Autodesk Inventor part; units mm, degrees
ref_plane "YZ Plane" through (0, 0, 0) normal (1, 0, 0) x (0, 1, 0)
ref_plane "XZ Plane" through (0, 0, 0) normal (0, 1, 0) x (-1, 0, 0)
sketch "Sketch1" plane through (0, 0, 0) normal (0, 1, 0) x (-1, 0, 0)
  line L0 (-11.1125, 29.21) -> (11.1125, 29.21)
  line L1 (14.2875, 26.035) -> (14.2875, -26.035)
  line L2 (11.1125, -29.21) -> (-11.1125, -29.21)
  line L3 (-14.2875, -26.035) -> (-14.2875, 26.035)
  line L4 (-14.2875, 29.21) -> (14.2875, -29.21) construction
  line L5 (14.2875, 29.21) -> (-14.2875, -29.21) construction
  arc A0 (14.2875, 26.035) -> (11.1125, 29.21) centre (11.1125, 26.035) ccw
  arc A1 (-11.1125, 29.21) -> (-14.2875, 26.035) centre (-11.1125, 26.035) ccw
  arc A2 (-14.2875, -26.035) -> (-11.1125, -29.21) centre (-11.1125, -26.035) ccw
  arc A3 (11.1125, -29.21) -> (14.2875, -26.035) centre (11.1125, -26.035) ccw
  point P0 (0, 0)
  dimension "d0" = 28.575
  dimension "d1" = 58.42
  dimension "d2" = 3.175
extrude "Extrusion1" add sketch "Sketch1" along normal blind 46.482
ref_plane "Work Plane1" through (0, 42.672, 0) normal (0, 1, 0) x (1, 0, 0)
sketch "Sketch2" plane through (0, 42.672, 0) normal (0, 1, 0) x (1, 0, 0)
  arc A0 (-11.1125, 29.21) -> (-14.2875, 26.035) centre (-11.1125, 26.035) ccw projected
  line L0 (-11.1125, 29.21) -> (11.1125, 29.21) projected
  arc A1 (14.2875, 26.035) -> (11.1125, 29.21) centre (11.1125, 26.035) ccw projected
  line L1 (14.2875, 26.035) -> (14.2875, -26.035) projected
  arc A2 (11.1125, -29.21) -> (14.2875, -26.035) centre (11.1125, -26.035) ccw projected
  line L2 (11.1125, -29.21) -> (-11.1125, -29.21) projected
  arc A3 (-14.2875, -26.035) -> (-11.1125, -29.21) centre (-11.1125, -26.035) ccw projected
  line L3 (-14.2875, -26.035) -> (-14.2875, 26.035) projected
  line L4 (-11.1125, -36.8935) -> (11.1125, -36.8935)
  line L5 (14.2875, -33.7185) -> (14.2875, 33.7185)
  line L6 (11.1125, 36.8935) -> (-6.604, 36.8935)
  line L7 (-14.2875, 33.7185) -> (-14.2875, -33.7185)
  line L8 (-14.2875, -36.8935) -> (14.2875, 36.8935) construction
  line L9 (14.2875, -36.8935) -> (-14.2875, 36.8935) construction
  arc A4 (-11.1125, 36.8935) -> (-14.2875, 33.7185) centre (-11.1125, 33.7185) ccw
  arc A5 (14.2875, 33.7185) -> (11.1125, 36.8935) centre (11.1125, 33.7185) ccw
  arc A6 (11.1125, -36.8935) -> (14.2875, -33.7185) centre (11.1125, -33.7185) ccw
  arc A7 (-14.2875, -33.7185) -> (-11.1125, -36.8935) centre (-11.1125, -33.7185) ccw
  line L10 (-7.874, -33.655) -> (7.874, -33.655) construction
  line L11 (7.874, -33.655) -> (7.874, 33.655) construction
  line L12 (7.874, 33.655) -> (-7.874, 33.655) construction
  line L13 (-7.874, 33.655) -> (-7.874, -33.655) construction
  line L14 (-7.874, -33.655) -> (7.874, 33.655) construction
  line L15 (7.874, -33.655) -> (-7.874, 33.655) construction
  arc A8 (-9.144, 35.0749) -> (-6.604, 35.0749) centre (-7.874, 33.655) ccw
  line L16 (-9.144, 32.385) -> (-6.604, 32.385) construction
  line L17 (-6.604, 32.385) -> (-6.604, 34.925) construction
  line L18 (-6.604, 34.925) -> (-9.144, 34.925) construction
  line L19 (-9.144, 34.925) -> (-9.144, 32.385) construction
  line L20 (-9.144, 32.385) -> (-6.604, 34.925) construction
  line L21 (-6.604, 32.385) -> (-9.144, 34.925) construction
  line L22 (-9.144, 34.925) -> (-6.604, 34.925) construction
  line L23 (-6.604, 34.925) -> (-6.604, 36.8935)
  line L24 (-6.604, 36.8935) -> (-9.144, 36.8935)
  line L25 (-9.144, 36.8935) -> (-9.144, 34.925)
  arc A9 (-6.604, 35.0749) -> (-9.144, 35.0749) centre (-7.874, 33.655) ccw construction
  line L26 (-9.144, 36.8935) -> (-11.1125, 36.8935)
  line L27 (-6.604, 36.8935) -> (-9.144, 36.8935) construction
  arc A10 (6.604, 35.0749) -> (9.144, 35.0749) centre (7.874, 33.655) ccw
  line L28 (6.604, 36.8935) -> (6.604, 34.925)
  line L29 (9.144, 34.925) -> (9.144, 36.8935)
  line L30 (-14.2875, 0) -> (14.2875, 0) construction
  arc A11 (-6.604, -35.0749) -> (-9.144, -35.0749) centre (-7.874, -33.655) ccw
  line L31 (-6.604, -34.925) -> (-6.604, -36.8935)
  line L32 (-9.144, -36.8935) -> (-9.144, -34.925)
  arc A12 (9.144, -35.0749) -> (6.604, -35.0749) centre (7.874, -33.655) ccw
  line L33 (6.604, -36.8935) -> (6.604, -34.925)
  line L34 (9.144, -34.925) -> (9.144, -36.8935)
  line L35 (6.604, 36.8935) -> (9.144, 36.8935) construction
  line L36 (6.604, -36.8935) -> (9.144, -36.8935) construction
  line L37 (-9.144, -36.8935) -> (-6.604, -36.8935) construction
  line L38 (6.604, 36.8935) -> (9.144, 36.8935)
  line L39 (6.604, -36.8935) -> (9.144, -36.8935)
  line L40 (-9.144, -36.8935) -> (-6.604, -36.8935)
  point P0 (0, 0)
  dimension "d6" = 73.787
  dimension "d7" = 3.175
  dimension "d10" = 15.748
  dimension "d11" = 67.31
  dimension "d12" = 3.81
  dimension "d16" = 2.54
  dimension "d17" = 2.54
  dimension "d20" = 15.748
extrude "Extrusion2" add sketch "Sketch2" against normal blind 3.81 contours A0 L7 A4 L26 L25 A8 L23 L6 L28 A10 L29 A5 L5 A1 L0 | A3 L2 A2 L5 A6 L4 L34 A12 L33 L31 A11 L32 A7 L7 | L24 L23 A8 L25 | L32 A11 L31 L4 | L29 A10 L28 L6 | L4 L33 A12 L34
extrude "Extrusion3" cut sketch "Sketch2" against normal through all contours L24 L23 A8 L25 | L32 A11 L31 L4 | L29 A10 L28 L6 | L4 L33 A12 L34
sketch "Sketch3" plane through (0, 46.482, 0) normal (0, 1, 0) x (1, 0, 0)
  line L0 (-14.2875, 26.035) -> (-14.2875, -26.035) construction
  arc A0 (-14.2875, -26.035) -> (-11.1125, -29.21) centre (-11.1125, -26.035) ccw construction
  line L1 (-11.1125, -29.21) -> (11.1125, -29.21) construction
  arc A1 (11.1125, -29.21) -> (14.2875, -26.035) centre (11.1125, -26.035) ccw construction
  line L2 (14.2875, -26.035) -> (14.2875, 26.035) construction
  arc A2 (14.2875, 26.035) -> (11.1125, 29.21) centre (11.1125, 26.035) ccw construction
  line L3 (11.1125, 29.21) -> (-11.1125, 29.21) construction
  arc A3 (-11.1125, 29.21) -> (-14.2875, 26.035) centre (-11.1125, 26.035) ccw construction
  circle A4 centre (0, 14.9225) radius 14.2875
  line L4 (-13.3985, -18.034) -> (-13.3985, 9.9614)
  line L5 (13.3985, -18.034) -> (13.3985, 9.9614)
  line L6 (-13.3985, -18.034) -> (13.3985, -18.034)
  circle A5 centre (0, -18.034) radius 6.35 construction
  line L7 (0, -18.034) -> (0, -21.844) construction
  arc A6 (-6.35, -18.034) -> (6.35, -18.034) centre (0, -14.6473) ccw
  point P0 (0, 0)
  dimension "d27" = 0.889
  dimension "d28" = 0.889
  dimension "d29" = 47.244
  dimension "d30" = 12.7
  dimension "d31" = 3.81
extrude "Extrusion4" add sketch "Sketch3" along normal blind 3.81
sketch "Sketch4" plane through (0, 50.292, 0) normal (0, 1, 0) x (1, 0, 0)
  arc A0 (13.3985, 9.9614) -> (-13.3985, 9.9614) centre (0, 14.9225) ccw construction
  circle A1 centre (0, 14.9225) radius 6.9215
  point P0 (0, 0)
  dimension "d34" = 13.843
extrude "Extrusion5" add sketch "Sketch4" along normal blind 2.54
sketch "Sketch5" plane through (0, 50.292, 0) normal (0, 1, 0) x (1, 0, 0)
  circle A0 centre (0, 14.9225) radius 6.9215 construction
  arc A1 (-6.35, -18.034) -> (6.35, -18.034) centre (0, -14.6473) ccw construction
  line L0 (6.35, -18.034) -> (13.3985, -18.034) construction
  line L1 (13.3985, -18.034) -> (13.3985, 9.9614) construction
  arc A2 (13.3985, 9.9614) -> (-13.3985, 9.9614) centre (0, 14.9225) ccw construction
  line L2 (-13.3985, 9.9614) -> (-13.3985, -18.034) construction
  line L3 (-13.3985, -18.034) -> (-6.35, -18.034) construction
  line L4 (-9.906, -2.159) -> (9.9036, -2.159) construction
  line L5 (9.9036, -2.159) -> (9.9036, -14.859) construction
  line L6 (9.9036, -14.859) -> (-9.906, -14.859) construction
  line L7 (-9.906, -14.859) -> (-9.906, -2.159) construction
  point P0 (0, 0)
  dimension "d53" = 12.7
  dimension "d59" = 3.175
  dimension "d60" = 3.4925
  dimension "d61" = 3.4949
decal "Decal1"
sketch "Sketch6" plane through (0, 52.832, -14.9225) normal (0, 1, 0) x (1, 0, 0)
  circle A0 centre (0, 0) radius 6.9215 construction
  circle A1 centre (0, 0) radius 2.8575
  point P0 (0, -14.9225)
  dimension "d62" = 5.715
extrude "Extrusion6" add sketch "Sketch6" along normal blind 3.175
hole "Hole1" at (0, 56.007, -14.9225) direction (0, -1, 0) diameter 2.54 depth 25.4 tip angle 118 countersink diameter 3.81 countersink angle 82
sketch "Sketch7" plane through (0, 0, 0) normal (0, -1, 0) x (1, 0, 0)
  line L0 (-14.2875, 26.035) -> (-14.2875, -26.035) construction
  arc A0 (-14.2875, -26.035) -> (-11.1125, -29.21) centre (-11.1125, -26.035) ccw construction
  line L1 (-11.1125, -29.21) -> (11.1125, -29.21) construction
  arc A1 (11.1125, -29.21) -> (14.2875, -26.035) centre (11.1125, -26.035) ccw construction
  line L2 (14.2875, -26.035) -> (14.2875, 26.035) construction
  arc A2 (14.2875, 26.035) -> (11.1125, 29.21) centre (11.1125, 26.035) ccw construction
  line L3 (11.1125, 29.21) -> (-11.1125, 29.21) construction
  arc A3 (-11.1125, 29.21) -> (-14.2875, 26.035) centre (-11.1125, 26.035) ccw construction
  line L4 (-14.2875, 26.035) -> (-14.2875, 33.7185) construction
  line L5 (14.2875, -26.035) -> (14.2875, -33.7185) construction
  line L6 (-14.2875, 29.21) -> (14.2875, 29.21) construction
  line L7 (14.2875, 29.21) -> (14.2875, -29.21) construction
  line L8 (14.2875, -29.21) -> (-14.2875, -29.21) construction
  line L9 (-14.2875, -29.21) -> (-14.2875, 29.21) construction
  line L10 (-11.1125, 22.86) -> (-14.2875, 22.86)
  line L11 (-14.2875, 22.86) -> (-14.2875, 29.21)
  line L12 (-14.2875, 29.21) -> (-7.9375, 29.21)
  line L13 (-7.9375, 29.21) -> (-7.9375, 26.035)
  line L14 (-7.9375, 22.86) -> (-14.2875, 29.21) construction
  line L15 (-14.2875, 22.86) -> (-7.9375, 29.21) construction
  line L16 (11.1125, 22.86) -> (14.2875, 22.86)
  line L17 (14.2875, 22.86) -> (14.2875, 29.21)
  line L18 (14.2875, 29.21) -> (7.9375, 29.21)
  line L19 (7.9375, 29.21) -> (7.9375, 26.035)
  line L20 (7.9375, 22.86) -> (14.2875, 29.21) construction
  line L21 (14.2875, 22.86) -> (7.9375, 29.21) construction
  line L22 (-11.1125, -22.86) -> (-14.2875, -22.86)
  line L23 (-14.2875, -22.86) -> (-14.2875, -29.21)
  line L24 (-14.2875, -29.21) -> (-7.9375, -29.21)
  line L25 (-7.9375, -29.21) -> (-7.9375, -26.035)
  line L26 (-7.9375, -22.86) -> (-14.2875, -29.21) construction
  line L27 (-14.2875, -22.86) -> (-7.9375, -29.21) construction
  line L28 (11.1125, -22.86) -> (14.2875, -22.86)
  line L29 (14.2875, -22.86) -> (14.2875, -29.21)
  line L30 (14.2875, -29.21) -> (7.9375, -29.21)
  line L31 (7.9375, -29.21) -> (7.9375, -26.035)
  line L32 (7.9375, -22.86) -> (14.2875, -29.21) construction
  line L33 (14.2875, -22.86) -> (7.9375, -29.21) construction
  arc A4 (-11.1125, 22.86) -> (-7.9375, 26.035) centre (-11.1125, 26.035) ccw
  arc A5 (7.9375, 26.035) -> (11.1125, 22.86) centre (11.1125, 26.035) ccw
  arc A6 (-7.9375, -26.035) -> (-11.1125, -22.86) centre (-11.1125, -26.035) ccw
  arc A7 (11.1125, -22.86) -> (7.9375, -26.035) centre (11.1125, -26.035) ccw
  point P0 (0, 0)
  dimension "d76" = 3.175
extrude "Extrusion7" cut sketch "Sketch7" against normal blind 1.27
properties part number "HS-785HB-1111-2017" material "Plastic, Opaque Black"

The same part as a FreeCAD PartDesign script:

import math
import FreeCAD as App
import Part
import Sketcher

V = App.Vector
Q = App.Units.Quantity

doc = App.newDocument("Part")
body = doc.addObject("PartDesign::Body", "Body")

# Sketch on XZ plane
sketch1 = body.newObject("Sketcher::SketchObject", "Sketch")
sketch1.AttachmentSupport = (doc.getObject("XZ_Plane"), [""])
sketch1.MapMode = "FlatFace"
sketch1.addGeometry([
    Part.LineSegment(V(-11.1, 29.2, 0), V(11.1, 29.2, 0)),  # 0
    Part.ArcOfCircle(Part.Circle(V(11.1, 26, 0), V(0, 0, 1), 3.2), math.radians(0), math.radians(90)),  # 1
    Part.LineSegment(V(14.3, 26, 0), V(14.3, -26, 0)),  # 2
    Part.ArcOfCircle(Part.Circle(V(11.1, -26, 0), V(0, 0, 1), 3.2), math.radians(-90), math.radians(0)),  # 3
    Part.LineSegment(V(11.1, -29.2, 0), V(-11.1, -29.2, 0)),  # 4
    Part.ArcOfCircle(Part.Circle(V(-11.1, -26, 0), V(0, 0, 1), 3.2), math.radians(180), math.radians(270)),  # 5
    Part.LineSegment(V(-14.3, -26, 0), V(-14.3, 26, 0)),  # 6
    Part.ArcOfCircle(Part.Circle(V(-11.1, 26, 0), V(0, 0, 1), 3.2), math.radians(90), math.radians(180)),  # 7
], False)
sketch1.addConstraint([
    Sketcher.Constraint("Tangent", 0, 2, 1, 2),
    Sketcher.Constraint("Tangent", 1, 1, 2, 1),
    Sketcher.Constraint("Tangent", 2, 2, 3, 2),
    Sketcher.Constraint("Tangent", 3, 1, 4, 1),
    Sketcher.Constraint("Tangent", 4, 2, 5, 2),
    Sketcher.Constraint("Tangent", 5, 1, 6, 1),
    Sketcher.Constraint("Tangent", 6, 2, 7, 2),
    Sketcher.Constraint("Tangent", 7, 1, 0, 1),
    Sketcher.Constraint("Horizontal", 0),
    Sketcher.Constraint("Vertical", 2),
    Sketcher.Constraint("Horizontal", 4),
    Sketcher.Constraint("Vertical", 6),
    Sketcher.Constraint("Equal", 1, 3),
    Sketcher.Constraint("Equal", 3, 5),
    Sketcher.Constraint("Equal", 5, 7),
    Sketcher.Constraint("Symmetric", 1, 3, 5, 3, -1, 1),
    Sketcher.Constraint("Radius", 1, Q("0.125 in")),
    Sketcher.Constraint("DistanceX", 7, 3, 1, 1, Q("1 in")),
    Sketcher.Constraint("DistanceY", 2, 2, 2, 1, Q("2.05 in")),
])
pad1 = body.newObject("PartDesign::Pad", "Pad")
pad1.Profile = sketch1
pad1.Length = Q("1.83 in")
pad1.Reversed = True

# Sketch on XZ plane
sketch2 = body.newObject("Sketcher::SketchObject", "Sketch001")
sketch2.AttachmentSupport = (doc.getObject("XZ_Plane"), [""])
sketch2.MapMode = "FlatFace"
sketch2.AttachmentOffset = App.Placement(V(0, 0, -1.68 * 25.4), App.Rotation())
sketch2.addGeometry([
    Part.ArcOfCircle(Part.Circle(V(-11.1, -26, 0), V(0, 0, 1), 3.2), math.radians(180), math.radians(270)),  # 0
    Part.LineSegment(V(-11.1, -29.2, 0), V(11.1, -29.2, 0)),  # 1
    Part.ArcOfCircle(Part.Circle(V(11.1, -26, 0), V(0, 0, 1), 3.2), math.radians(-90), math.radians(0)),  # 2
    Part.LineSegment(V(14.3, -26, 0), V(14.3, -33.7, 0)),  # 3
    Part.ArcOfCircle(Part.Circle(V(11.1, -33.7, 0), V(0, 0, 1), 3.2), math.radians(-90), math.radians(0)),  # 4
    Part.LineSegment(V(11.1, -36.9, 0), V(-11.1, -36.9, 0)),  # 5
    Part.ArcOfCircle(Part.Circle(V(-11.1, -33.7, 0), V(0, 0, 1), 3.2), math.radians(180), math.radians(270)),  # 6
    Part.LineSegment(V(-14.3, -33.7, 0), V(-14.3, -26, 0)),  # 7
    Part.ArcOfCircle(Part.Circle(V(-11.1, 26, 0), V(0, 0, 1), 3.2), math.radians(90), math.radians(180)),  # 8
    Part.LineSegment(V(-14.3, 26, 0), V(-14.3, 33.7, 0)),  # 9
    Part.ArcOfCircle(Part.Circle(V(-11.1, 33.7, 0), V(0, 0, 1), 3.2), math.radians(90), math.radians(180)),  # 10
    Part.LineSegment(V(-11.1, 36.9, 0), V(11.1, 36.9, 0)),  # 11
    Part.ArcOfCircle(Part.Circle(V(11.1, 33.7, 0), V(0, 0, 1), 3.2), math.radians(0), math.radians(90)),  # 12
    Part.LineSegment(V(14.3, 33.7, 0), V(14.3, 26, 0)),  # 13
    Part.ArcOfCircle(Part.Circle(V(11.1, 26, 0), V(0, 0, 1), 3.2), math.radians(0), math.radians(90)),  # 14
    Part.LineSegment(V(11.1, 29.2, 0), V(-11.1, 29.2, 0)),  # 15
], False)
sketch2.addConstraint([
    Sketcher.Constraint("Tangent", 0, 2, 1, 1),
    Sketcher.Constraint("Tangent", 1, 2, 2, 1),
    Sketcher.Constraint("Tangent", 2, 2, 3, 1),
    Sketcher.Constraint("Tangent", 3, 2, 4, 2),
    Sketcher.Constraint("Tangent", 4, 1, 5, 1),
    Sketcher.Constraint("Tangent", 5, 2, 6, 2),
    Sketcher.Constraint("Tangent", 6, 1, 7, 1),
    Sketcher.Constraint("Tangent", 7, 2, 0, 1),
    Sketcher.Constraint("Tangent", 8, 2, 9, 1),
    Sketcher.Constraint("Tangent", 9, 2, 10, 2),
    Sketcher.Constraint("Tangent", 10, 1, 11, 1),
    Sketcher.Constraint("Tangent", 11, 2, 12, 2),
    Sketcher.Constraint("Tangent", 12, 1, 13, 1),
    Sketcher.Constraint("Tangent", 13, 2, 14, 1),
    Sketcher.Constraint("Tangent", 14, 2, 15, 1),
    Sketcher.Constraint("Tangent", 15, 2, 8, 1),
    Sketcher.Constraint("Horizontal", 1),
    Sketcher.Constraint("Vertical", 3),
    Sketcher.Constraint("Horizontal", 5),
    Sketcher.Constraint("Vertical", 7),
    Sketcher.Constraint("Vertical", 9),
    Sketcher.Constraint("Horizontal", 11),
    Sketcher.Constraint("Vertical", 13),
    Sketcher.Constraint("Horizontal", 15),
    Sketcher.Constraint("Equal", 0, 2),
    Sketcher.Constraint("Equal", 2, 4),
    Sketcher.Constraint("Equal", 4, 6),
    Sketcher.Constraint("Equal", 6, 8),
    Sketcher.Constraint("Equal", 8, 10),
    Sketcher.Constraint("Equal", 10, 12),
    Sketcher.Constraint("Equal", 12, 14),
    Sketcher.Constraint("Symmetric", 2, 3, 8, 3, -1, 1),
    Sketcher.Constraint("Symmetric", 6, 3, 12, 3, -1, 1),
    Sketcher.Constraint("Vertical", 6, 3, 8, 3),
    Sketcher.Constraint("Radius", 0, Q("0.125 in")),
    Sketcher.Constraint("DistanceX", 0, 3, 2, 2, Q("1 in")),
    Sketcher.Constraint("DistanceY", 0, 2, -1, 1, Q("1.15 in")),
    Sketcher.Constraint("DistanceY", 3, 2, 3, 1, Q("0.3025 in")),
])
pad2 = body.newObject("PartDesign::Pad", "Pad001")
pad2.Profile = sketch2
pad2.Length = Q("0.15 in")

# Sketch on XZ plane
sketch3 = body.newObject("Sketcher::SketchObject", "Sketch002")
sketch3.AttachmentSupport = (doc.getObject("XZ_Plane"), [""])
sketch3.MapMode = "FlatFace"
sketch3.AttachmentOffset = App.Placement(V(0, 0, -1.68 * 25.4), App.Rotation())
sketch3.addGeometry([
    Part.LineSegment(V(-6.6, -36.9, 0), V(-9.1, -36.9, 0)),  # 0
    Part.LineSegment(V(-9.1, -36.9, 0), V(-9.1, -35.1, 0)),  # 1
    Part.ArcOfCircle(Part.Circle(V(-7.9, -33.7, 0), V(0, 0, 1), 1.9), math.radians(-48), math.radians(228)),  # 2
    Part.LineSegment(V(-6.6, -35.1, 0), V(-6.6, -36.9, 0)),  # 3
    Part.LineSegment(V(-9.1, 35.1, 0), V(-9.1, 36.9, 0)),  # 4
    Part.LineSegment(V(-9.1, 36.9, 0), V(-6.6, 36.9, 0)),  # 5
    Part.LineSegment(V(-6.6, 36.9, 0), V(-6.6, 35.1, 0)),  # 6
    Part.ArcOfCircle(Part.Circle(V(-7.9, 33.7, 0), V(0, 0, 1), 1.9), math.radians(132), math.radians(408)),  # 7
    Part.LineSegment(V(9.1, -35.1, 0), V(9.1, -36.9, 0)),  # 8
    Part.LineSegment(V(9.1, -36.9, 0), V(6.6, -36.9, 0)),  # 9
    Part.LineSegment(V(6.6, -36.9, 0), V(6.6, -35.1, 0)),  # 10
    Part.ArcOfCircle(Part.Circle(V(7.9, -33.7, 0), V(0, 0, 1), 1.9), math.radians(-48), math.radians(228)),  # 11
    Part.LineSegment(V(6.6, 36.9, 0), V(9.1, 36.9, 0)),  # 12
    Part.LineSegment(V(9.1, 36.9, 0), V(9.1, 35.1, 0)),  # 13
    Part.ArcOfCircle(Part.Circle(V(7.9, 33.7, 0), V(0, 0, 1), 1.9), math.radians(132), math.radians(408)),  # 14
    Part.LineSegment(V(6.6, 35.1, 0), V(6.6, 36.9, 0)),  # 15
], False)
sketch3.addConstraint([
    Sketcher.Constraint("Coincident", 0, 2, 1, 1),
    Sketcher.Constraint("Coincident", 1, 2, 2, 2),
    Sketcher.Constraint("Coincident", 2, 1, 3, 1),
    Sketcher.Constraint("Coincident", 3, 2, 0, 1),
    Sketcher.Constraint("Coincident", 4, 2, 5, 1),
    Sketcher.Constraint("Coincident", 5, 2, 6, 1),
    Sketcher.Constraint("Coincident", 6, 2, 7, 2),
    Sketcher.Constraint("Coincident", 7, 1, 4, 1),
    Sketcher.Constraint("Coincident", 8, 2, 9, 1),
    Sketcher.Constraint("Coincident", 9, 2, 10, 1),
    Sketcher.Constraint("Coincident", 10, 2, 11, 2),
    Sketcher.Constraint("Coincident", 11, 1, 8, 1),
    Sketcher.Constraint("Coincident", 12, 2, 13, 1),
    Sketcher.Constraint("Coincident", 13, 2, 14, 2),
    Sketcher.Constraint("Coincident", 14, 1, 15, 1),
    Sketcher.Constraint("Coincident", 15, 2, 12, 1),
    Sketcher.Constraint("Horizontal", 0),
    Sketcher.Constraint("Vertical", 1),
    Sketcher.Constraint("Vertical", 3),
    Sketcher.Constraint("Vertical", 4),
    Sketcher.Constraint("Horizontal", 5),
    Sketcher.Constraint("Vertical", 6),
    Sketcher.Constraint("Vertical", 8),
    Sketcher.Constraint("Horizontal", 9),
    Sketcher.Constraint("Vertical", 10),
    Sketcher.Constraint("Horizontal", 12),
    Sketcher.Constraint("Vertical", 13),
    Sketcher.Constraint("Vertical", 15),
    Sketcher.Constraint("Equal", 2, 7),
    Sketcher.Constraint("Equal", 7, 11),
    Sketcher.Constraint("Equal", 11, 14),
    Sketcher.Constraint("Symmetric", 7, 3, 11, 3, -1, 1),
    Sketcher.Constraint("Symmetric", 2, 3, 14, 3, -1, 1),
    Sketcher.Constraint("Symmetric", 4, 2, 8, 2, -1, 1),
    Sketcher.Constraint("Symmetric", 0, 2, 12, 2, -1, 1),
    Sketcher.Constraint("Symmetric", 2, 3, 11, 3, -2),
    Sketcher.Constraint("Symmetric", 0, 2, 8, 2, -2),
    Sketcher.Constraint("Horizontal", 1, 2, 2, 1),
    Sketcher.Constraint("Horizontal", 6, 2, 7, 1),
    Sketcher.Constraint("Horizontal", 2, 1, 10, 2),
    Sketcher.Constraint("Horizontal", 13, 2, 14, 1),
    Sketcher.Constraint("DistanceX", 0, 2, 0, 1, Q("0.1 in")),
    Sketcher.Constraint("Radius", 2, Q("0.075 in")),
    Sketcher.Constraint("DistanceY", 2, 3, 7, 3, Q("2.65 in")),
    Sketcher.Constraint("DistanceX", 2, 3, 11, 3, Q("0.62 in")),
    Sketcher.Constraint("DistanceY", 1, 1, 1, 2, Q("0.0716 in")),
])
pocket1 = body.newObject("PartDesign::Pocket", "Pocket")
pocket1.Profile = sketch3
pocket1.Type = "ThroughAll"
pocket1.Reversed = True

# Sketch on XZ plane
sketch4 = body.newObject("Sketcher::SketchObject", "Sketch003")
sketch4.AttachmentSupport = (doc.getObject("XZ_Plane"), [""])
sketch4.MapMode = "FlatFace"
sketch4.AttachmentOffset = App.Placement(V(0, 0, -1.83 * 25.4), App.Rotation())
sketch4.addGeometry([
    Part.ArcOfCircle(Part.Circle(V(0, -15, 0), V(0, 0, 1), 14), math.radians(160), math.radians(380)),  # 0
    Part.LineSegment(V(-13, -10, 0), V(-13, 18, 0)),  # 1
    Part.LineSegment(V(-13, 18, 0), V(-6, 18, 0)),  # 2
    Part.ArcOfCircle(Part.Circle(V(0, 15, 0), V(0, 0, 1), 7), math.radians(28), math.radians(152)),  # 3
    Part.LineSegment(V(6, 18, 0), V(13, 18, 0)),  # 4
    Part.LineSegment(V(13, 18, 0), V(13, -10, 0)),  # 5
], False)
sketch4.addConstraint([
    Sketcher.Constraint("Coincident", 0, 1, 1, 1),
    Sketcher.Constraint("Coincident", 1, 2, 2, 1),
    Sketcher.Constraint("Coincident", 2, 2, 3, 2),
    Sketcher.Constraint("Coincident", 3, 1, 4, 1),
    Sketcher.Constraint("Coincident", 4, 2, 5, 1),
    Sketcher.Constraint("Coincident", 5, 2, 0, 2),
    Sketcher.Constraint("Vertical", 1),
    Sketcher.Constraint("Horizontal", 2),
    Sketcher.Constraint("Horizontal", 4),
    Sketcher.Constraint("Vertical", 5),
    Sketcher.Constraint("Symmetric", 2, 2, 3, 1, -2),
    Sketcher.Constraint("Symmetric", 0, 1, 5, 2, -2),
    Sketcher.Constraint("DistanceX", 2, 2, 3, 1, Q("0.5 in")),
    Sketcher.Constraint("Radius", 0, Q("0.5625 in")),
    Sketcher.Constraint("DistanceY", -1, 1, 1, 2, Q("0.71 in")),
    Sketcher.Constraint("Radius", 3, Q("7.1967 mm")),
    Sketcher.Constraint("DistanceX", 2, 1, 2, 2, Q("0.2775 in")),
    Sketcher.Constraint("DistanceY", 1, 1, 1, 2, Q("27.9954 mm")),
])
pad3 = body.newObject("PartDesign::Pad", "Pad002")
pad3.Profile = sketch4
pad3.Length = Q("0.15 in")
pad3.Reversed = True

# Sketch on XZ plane
sketch5 = body.newObject("Sketcher::SketchObject", "Sketch004")
sketch5.AttachmentSupport = (doc.getObject("XZ_Plane"), [""])
sketch5.MapMode = "FlatFace"
sketch5.AttachmentOffset = App.Placement(V(0, 0, -1.98 * 25.4), App.Rotation())
sketch5.addGeometry(Part.Circle(V(0, -15, 0), V(0, 0, 1), 7), False)
sketch5.addConstraint([
    Sketcher.Constraint("PointOnObject", 0, 3, -2),
    Sketcher.Constraint("Diameter", 0, Q("0.545 in")),
    Sketcher.Constraint("DistanceY", 0, 3, -1, 1, Q("0.5875 in")),
])
pad4 = body.newObject("PartDesign::Pad", "Pad003")
pad4.Profile = sketch5
pad4.Length = Q("0.1 in")
pad4.Reversed = True

# Sketch on XZ plane
sketch6 = body.newObject("Sketcher::SketchObject", "Sketch005")
sketch6.AttachmentSupport = (doc.getObject("XZ_Plane"), [""])
sketch6.MapMode = "FlatFace"
sketch6.AttachmentOffset = App.Placement(V(0, 0, -2.08 * 25.4), App.Rotation())
sketch6.addGeometry(Part.Circle(V(0, -14.9, 0), V(0, 0, 1), 2.9), False)
sketch6.addConstraint([
    Sketcher.Constraint("PointOnObject", 0, 3, -2),
    Sketcher.Constraint("Diameter", 0, Q("0.225 in")),
    Sketcher.Constraint("DistanceY", 0, 3, -1, 1, Q("0.5875 in")),
])
pad5 = body.newObject("PartDesign::Pad", "Pad004")
pad5.Profile = sketch6
pad5.Length = Q("0.125 in")
pad5.Reversed = True

# Sketch on XZ plane
sketch7 = body.newObject("Sketcher::SketchObject", "Sketch006")
sketch7.AttachmentSupport = (doc.getObject("XZ_Plane"), [""])
sketch7.MapMode = "FlatFace"
sketch7.AttachmentOffset = App.Placement(V(0, 0, -2.205 * 25.4), App.Rotation())
sketch7.addGeometry(Part.Circle(V(0, -14.9, 0), V(0, 0, 1), 1.3), False)
sketch7.addConstraint([
    Sketcher.Constraint("PointOnObject", 0, 3, -2),
    Sketcher.Constraint("Diameter", 0, Q("0.1 in")),
    Sketcher.Constraint("DistanceY", 0, 3, -1, 1, Q("0.5875 in")),
])
doc.recompute()
hole = body.newObject("PartDesign::Hole", "Hole")
hole.Profile = sketch7
hole.ThreadType = "None"
hole.Diameter = Q("0.1 in")
hole.DepthType = "Dimension"
hole.Depth = Q("1 in")
hole.DrillPoint = "Angled"
hole.DrillPointAngle = 118
hole.HoleCutType = "Countersink"
hole.HoleCutDiameter = Q("0.15 in")
hole.HoleCutCountersinkAngle = 82
hole.Reversed = True

# Sketch on XZ plane
sketch8 = body.newObject("Sketcher::SketchObject", "Sketch007")
sketch8.AttachmentSupport = (doc.getObject("XZ_Plane"), [""])
sketch8.MapMode = "FlatFace"
sketch8.addGeometry([
    Part.LineSegment(V(-14.3, 22.9, 0), V(-11.1, 22.9, 0)),  # 0
    Part.ArcOfCircle(Part.Circle(V(-11.1, 26, 0), V(0, 0, 1), 3.2), math.radians(-90), math.radians(0)),  # 1
    Part.LineSegment(V(-7.9, 26, 0), V(-7.9, 29.2, 0)),  # 2
    Part.LineSegment(V(-7.9, 29.2, 0), V(-14.3, 29.2, 0)),  # 3
    Part.LineSegment(V(-14.3, 29.2, 0), V(-14.3, 22.9, 0)),  # 4
    Part.ArcOfCircle(Part.Circle(V(11.1, 26, 0), V(0, 0, 1), 3.2), math.radians(180), math.radians(270)),  # 5
    Part.LineSegment(V(11.1, 22.9, 0), V(14.3, 22.9, 0)),  # 6
    Part.LineSegment(V(14.3, 22.9, 0), V(14.3, 29.2, 0)),  # 7
    Part.LineSegment(V(14.3, 29.2, 0), V(7.9, 29.2, 0)),  # 8
    Part.LineSegment(V(7.9, 29.2, 0), V(7.9, 26, 0)),  # 9
    Part.ArcOfCircle(Part.Circle(V(-11.1, -26, 0), V(0, 0, 1), 3.2), math.radians(0), math.radians(90)),  # 10
    Part.LineSegment(V(-11.1, -22.9, 0), V(-14.3, -22.9, 0)),  # 11
    Part.LineSegment(V(-14.3, -22.9, 0), V(-14.3, -29.2, 0)),  # 12
    Part.LineSegment(V(-14.3, -29.2, 0), V(-7.9, -29.2, 0)),  # 13
    Part.LineSegment(V(-7.9, -29.2, 0), V(-7.9, -26, 0)),  # 14
    Part.LineSegment(V(14.3, -22.9, 0), V(11.1, -22.9, 0)),  # 15
    Part.ArcOfCircle(Part.Circle(V(11.1, -26, 0), V(0, 0, 1), 3.2), math.radians(90), math.radians(180)),  # 16
    Part.LineSegment(V(7.9, -26, 0), V(7.9, -29.2, 0)),  # 17
    Part.LineSegment(V(7.9, -29.2, 0), V(14.3, -29.2, 0)),  # 18
    Part.LineSegment(V(14.3, -29.2, 0), V(14.3, -22.9, 0)),  # 19
], False)
sketch8.addConstraint([
    Sketcher.Constraint("Tangent", 0, 2, 1, 1),
    Sketcher.Constraint("Tangent", 1, 2, 2, 1),
    Sketcher.Constraint("Coincident", 2, 2, 3, 1),
    Sketcher.Constraint("Coincident", 3, 2, 4, 1),
    Sketcher.Constraint("Coincident", 4, 2, 0, 1),
    Sketcher.Constraint("Tangent", 5, 2, 6, 1),
    Sketcher.Constraint("Coincident", 6, 2, 7, 1),
    Sketcher.Constraint("Coincident", 7, 2, 8, 1),
    Sketcher.Constraint("Coincident", 8, 2, 9, 1),
    Sketcher.Constraint("Tangent", 9, 2, 5, 1),
    Sketcher.Constraint("Tangent", 10, 2, 11, 1),
    Sketcher.Constraint("Coincident", 11, 2, 12, 1),
    Sketcher.Constraint("Coincident", 12, 2, 13, 1),
    Sketcher.Constraint("Coincident", 13, 2, 14, 1),
    Sketcher.Constraint("Tangent", 14, 2, 10, 1),
    Sketcher.Constraint("Tangent", 15, 2, 16, 1),
    Sketcher.Constraint("Tangent", 16, 2, 17, 1),
    Sketcher.Constraint("Coincident", 17, 2, 18, 1),
    Sketcher.Constraint("Coincident", 18, 2, 19, 1),
    Sketcher.Constraint("Coincident", 19, 2, 15, 1),
    Sketcher.Constraint("Horizontal", 0),
    Sketcher.Constraint("Vertical", 2),
    Sketcher.Constraint("Horizontal", 3),
    Sketcher.Constraint("Vertical", 4),
    Sketcher.Constraint("Horizontal", 6),
    Sketcher.Constraint("Vertical", 7),
    Sketcher.Constraint("Horizontal", 8),
    Sketcher.Constraint("Vertical", 9),
    Sketcher.Constraint("Horizontal", 11),
    Sketcher.Constraint("Vertical", 12),
    Sketcher.Constraint("Horizontal", 13),
    Sketcher.Constraint("Vertical", 14),
    Sketcher.Constraint("Horizontal", 15),
    Sketcher.Constraint("Vertical", 17),
    Sketcher.Constraint("Horizontal", 18),
    Sketcher.Constraint("Vertical", 19),
    Sketcher.Constraint("Equal", 1, 5),
    Sketcher.Constraint("Equal", 5, 10),
    Sketcher.Constraint("Equal", 10, 16),
    Sketcher.Constraint("Symmetric", 5, 3, 10, 3, -1, 1),
    Sketcher.Constraint("Symmetric", 1, 3, 16, 3, -1, 1),
    Sketcher.Constraint("Symmetric", 7, 2, 12, 2, -1, 1),
    Sketcher.Constraint("Symmetric", 3, 2, 18, 2, -1, 1),
    Sketcher.Constraint("Symmetric", 1, 3, 5, 3, -2),
    Sketcher.Constraint("Symmetric", 3, 2, 7, 2, -2),
    Sketcher.Constraint("Equal", 15, 2),
    Sketcher.Constraint("Radius", 1, Q("0.125 in")),
    Sketcher.Constraint("DistanceX", 0, 1, 0, 2, Q("0.125 in")),
    Sketcher.Constraint("DistanceX", 3, 2, 5, 3, Q("1 in")),
    Sketcher.Constraint("DistanceY", -1, 1, 0, 2, Q("0.9 in")),
])
pocket2 = body.newObject("PartDesign::Pocket", "Pocket001")
pocket2.Profile = sketch8
pocket2.Length = Q("0.05 in")

doc.recompute()
